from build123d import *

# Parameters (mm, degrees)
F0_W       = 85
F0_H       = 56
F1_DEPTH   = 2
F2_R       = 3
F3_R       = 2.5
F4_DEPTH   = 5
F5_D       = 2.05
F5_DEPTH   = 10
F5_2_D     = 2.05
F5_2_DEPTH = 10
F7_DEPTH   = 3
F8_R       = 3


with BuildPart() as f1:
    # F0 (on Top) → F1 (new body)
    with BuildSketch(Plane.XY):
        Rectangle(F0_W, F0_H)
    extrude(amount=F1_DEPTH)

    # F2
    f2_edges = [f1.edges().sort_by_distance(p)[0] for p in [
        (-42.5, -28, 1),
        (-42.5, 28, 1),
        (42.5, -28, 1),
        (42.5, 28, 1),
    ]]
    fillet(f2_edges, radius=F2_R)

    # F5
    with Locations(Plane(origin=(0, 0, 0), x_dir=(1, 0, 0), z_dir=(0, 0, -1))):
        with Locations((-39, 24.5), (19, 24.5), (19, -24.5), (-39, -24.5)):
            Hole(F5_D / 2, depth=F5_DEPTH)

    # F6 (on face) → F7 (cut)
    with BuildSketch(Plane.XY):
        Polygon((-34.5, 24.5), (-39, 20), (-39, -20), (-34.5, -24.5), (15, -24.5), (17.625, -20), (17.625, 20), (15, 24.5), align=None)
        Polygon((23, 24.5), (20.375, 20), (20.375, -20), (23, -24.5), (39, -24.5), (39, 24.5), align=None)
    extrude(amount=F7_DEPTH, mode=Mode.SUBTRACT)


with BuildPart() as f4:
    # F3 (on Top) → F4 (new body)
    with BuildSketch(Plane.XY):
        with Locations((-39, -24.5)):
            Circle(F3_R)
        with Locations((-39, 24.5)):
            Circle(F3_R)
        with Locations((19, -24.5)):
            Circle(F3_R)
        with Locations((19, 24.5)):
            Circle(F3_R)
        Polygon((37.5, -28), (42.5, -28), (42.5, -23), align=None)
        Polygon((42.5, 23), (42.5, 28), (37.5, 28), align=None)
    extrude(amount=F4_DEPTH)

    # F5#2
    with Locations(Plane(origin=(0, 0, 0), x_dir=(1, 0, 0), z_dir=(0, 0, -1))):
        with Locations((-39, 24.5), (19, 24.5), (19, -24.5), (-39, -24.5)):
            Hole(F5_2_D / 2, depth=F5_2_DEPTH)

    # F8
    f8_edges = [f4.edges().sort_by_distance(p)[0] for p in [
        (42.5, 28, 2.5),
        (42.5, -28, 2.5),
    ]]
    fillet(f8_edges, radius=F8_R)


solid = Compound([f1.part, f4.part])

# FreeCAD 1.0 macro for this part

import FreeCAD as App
import Part
import Sketcher
from FreeCAD import Vector


def edges_at(feature, points):
    """Names of the edges that pass closest to the given points."""
    edges = feature.Shape.Edges
    near = lambda p: min(range(len(edges)), key=lambda i: edges[i].distToShape(Part.Vertex(*p))[0])
    return sorted({f"Edge{near(p) + 1}" for p in points})

doc = App.newDocument("Part")
body = doc.addObject("PartDesign::Body", "Body")

# Sketch on XY plane
sketch1 = doc.addObject("Sketcher::SketchObject", "Sketch")
body.addObject(sketch1)
sketch1.AttachmentSupport = (doc.XY_Plane, [""])
sketch1.MapMode = "FlatFace"
sketch1.addGeometry(Part.LineSegment(Vector(-42, 28, 0), Vector(-42, -28, 0)), False)
sketch1.addGeometry(Part.LineSegment(Vector(-42, -28, 0), Vector(42, -28, 0)), False)
sketch1.addGeometry(Part.LineSegment(Vector(42, -28, 0), Vector(42, 28, 0)), False)
sketch1.addGeometry(Part.LineSegment(Vector(42, 28, 0), Vector(-42, 28, 0)), False)
sketch1.addConstraint(Sketcher.Constraint("Coincident", 0, 2, 1, 1))
sketch1.addConstraint(Sketcher.Constraint("Coincident", 1, 2, 2, 1))
sketch1.addConstraint(Sketcher.Constraint("Coincident", 2, 2, 3, 1))
sketch1.addConstraint(Sketcher.Constraint("Coincident", 3, 2, 0, 1))
sketch1.addConstraint(Sketcher.Constraint("Vertical", 0))
sketch1.addConstraint(Sketcher.Constraint("Horizontal", 1))
sketch1.addConstraint(Sketcher.Constraint("Vertical", 2))
sketch1.addConstraint(Sketcher.Constraint("Horizontal", 3))
sketch1.addConstraint(Sketcher.Constraint("Symmetric", 0, 2, 2, 2, -1, 1))
sketch1.addConstraint(Sketcher.Constraint("DistanceX", 1, 1, 1, 2, 85.0))
sketch1.addConstraint(Sketcher.Constraint("DistanceY", 0, 2, 0, 1, 56.0))
pad1 = doc.addObject("PartDesign::Pad", "Pad")
body.addObject(pad1)
pad1.Profile = sketch1
pad1.Length = 2
doc.recompute()

fillet = doc.addObject("PartDesign::Fillet", "Fillet")
body.addObject(fillet)
fillet.Base = (pad1, edges_at(pad1, [
    (-42.5, -28, 1),
    (-42.5, 28, 1),
    (42.5, -28, 1),
    (42.5, 28, 1),
]))
fillet.Radius = 3

# Sketch on XY plane
sketch2 = doc.addObject("Sketcher::SketchObject", "Sketch001")
body.addObject(sketch2)
sketch2.AttachmentSupport = (doc.XY_Plane, [""])
sketch2.MapMode = "FlatFace"
sketch2.addGeometry(Part.Circle(Vector(-39, -24.5, 0), Vector(0, 0, 1), 1), False)
sketch2.addGeometry(Part.Circle(Vector(19, -24.5, 0), Vector(0, 0, 1), 1), False)
sketch2.addGeometry(Part.Circle(Vector(19, 24.5, 0), Vector(0, 0, 1), 1), False)
sketch2.addGeometry(Part.Circle(Vector(-39, 24.5, 0), Vector(0, 0, 1), 1), False)
sketch2.addConstraint(Sketcher.Constraint("Equal", 0, 1))
sketch2.addConstraint(Sketcher.Constraint("Equal", 1, 2))
sketch2.addConstraint(Sketcher.Constraint("Equal", 2, 3))
sketch2.addConstraint(Sketcher.Constraint("Symmetric", 1, 3, 2, 3, -1))
sketch2.addConstraint(Sketcher.Constraint("Symmetric", 0, 3, 3, 3, -1))
sketch2.addConstraint(Sketcher.Constraint("Horizontal", 0, 3, 1, 3))
sketch2.addConstraint(Sketcher.Constraint("Diameter", 0, 2.05))
sketch2.addConstraint(Sketcher.Constraint("DistanceX", 0, 3, -1, 1, 39.0))
sketch2.addConstraint(Sketcher.Constraint("DistanceX", -1, 1, 1, 3, 19.0))
sketch2.addConstraint(Sketcher.Constraint("DistanceY", 1, 3, 2, 3, 49.0))
doc.recompute()
hole = doc.addObject("PartDesign::Hole", "Hole")
body.addObject(hole)
hole.Profile = sketch2
hole.ThreadType = "None"
hole.Diameter = 2.05
hole.DepthType = "Dimension"
hole.Depth = 10
hole.DrillPoint = "Flat"
hole.Reversed = True

# Sketch on XY plane
sketch3 = doc.addObject("Sketcher::SketchObject", "Sketch002")
body.addObject(sketch3)
sketch3.AttachmentSupport = (doc.XY_Plane, [""])
sketch3.MapMode = "FlatFace"
sketch3.addGeometry(Part.LineSegment(Vector(-34, 24, 0), Vector(-39, 20, 0)), False)
sketch3.addGeometry(Part.LineSegment(Vector(-39, 20, 0), Vector(-39, -20, 0)), False)
sketch3.addGeometry(Part.LineSegment(Vector(-39, -20, 0), Vector(-34, -24, 0)), False)
sketch3.addGeometry(Part.LineSegment(Vector(-34, -24, 0), Vector(15, -24, 0)), False)
sketch3.addGeometry(Part.LineSegment(Vector(15, -24, 0), Vector(18, -20, 0)), False)
sketch3.addGeometry(Part.LineSegment(Vector(18, -20, 0), Vector(18, 20, 0)), False)
sketch3.addGeometry(Part.LineSegment(Vector(18, 20, 0), Vector(15, 24, 0)), False)
sketch3.addGeometry(Part.LineSegment(Vector(15, 24, 0), Vector(-34, 24, 0)), False)
sketch3.addGeometry(Part.LineSegment(Vector(23, 24, 0), Vector(20, 20, 0)), False)
sketch3.addGeometry(Part.LineSegment(Vector(20, 20, 0), Vector(20, -20, 0)), False)
sketch3.addGeometry(Part.LineSegment(Vector(20, -20, 0), Vector(23, -24, 0)), False)
sketch3.addGeometry(Part.LineSegment(Vector(23, -24, 0), Vector(39, -24, 0)), False)
sketch3.addGeometry(Part.LineSegment(Vector(39, -24, 0), Vector(39, 24, 0)), False)
sketch3.addGeometry(Part.LineSegment(Vector(39, 24, 0), Vector(23, 24, 0)), False)
sketch3.addConstraint(Sketcher.Constraint("Coincident", 0, 2, 1, 1))
sketch3.addConstraint(Sketcher.Constraint("Coincident", 1, 2, 2, 1))
sketch3.addConstraint(Sketcher.Constraint("Coincident", 2, 2, 3, 1))
sketch3.addConstraint(Sketcher.Constraint("Coincident", 3, 2, 4, 1))
sketch3.addConstraint(Sketcher.Constraint("Coincident", 4, 2, 5, 1))
sketch3.addConstraint(Sketcher.Constraint("Coincident", 5, 2, 6, 1))
sketch3.addConstraint(Sketcher.Constraint("Coincident", 6, 2, 7, 1))
sketch3.addConstraint(Sketcher.Constraint("Coincident", 7, 2, 0, 1))
sketch3.addConstraint(Sketcher.Constraint("Coincident", 8, 2, 9, 1))
sketch3.addConstraint(Sketcher.Constraint("Coincident", 9, 2, 10, 1))
sketch3.addConstraint(Sketcher.Constraint("Coincident", 10, 2, 11, 1))
sketch3.addConstraint(Sketcher.Constraint("Coincident", 11, 2, 12, 1))
sketch3.addConstraint(Sketcher.Constraint("Coincident", 12, 2, 13, 1))
sketch3.addConstraint(Sketcher.Constraint("Coincident", 13, 2, 8, 1))
sketch3.addConstraint(Sketcher.Constraint("Vertical", 1))
sketch3.addConstraint(Sketcher.Constraint("Horizontal", 3))
sketch3.addConstraint(Sketcher.Constraint("Vertical", 5))
sketch3.addConstraint(Sketcher.Constraint("Horizontal", 7))
sketch3.addConstraint(Sketcher.Constraint("Vertical", 9))
sketch3.addConstraint(Sketcher.Constraint("Horizontal", 11))
sketch3.addConstraint(Sketcher.Constraint("Vertical", 12))
sketch3.addConstraint(Sketcher.Constraint("Horizontal", 13))
sketch3.addConstraint(Sketcher.Constraint("Symmetric", 3, 2, 6, 2, -1))
sketch3.addConstraint(Sketcher.Constraint("Symmetric", 10, 2, 13, 2, -1))
sketch3.addConstraint(Sketcher.Constraint("Perpendicular", 0, 2))
sketch3.addConstraint(Sketcher.Constraint("Parallel", 4, 8))
sketch3.addConstraint(Sketcher.Constraint("Parallel", 6, 10))
sketch3.addConstraint(Sketcher.Constraint("Horizontal", 1, 2, 4, 2))
sketch3.addConstraint(Sketcher.Constraint("Horizontal", 0, 2, 5, 2))
sketch3.addConstraint(Sketcher.Constraint("Horizontal", 5, 2, 8, 2))
sketch3.addConstraint(Sketcher.Constraint("Horizontal", 4, 2, 9, 2))
sketch3.addConstraint(Sketcher.Constraint("Horizontal", 3, 2, 10, 2))
sketch3.addConstraint(Sketcher.Constraint("Vertical", 2, 2, 7, 2))
sketch3.addConstraint(Sketcher.Constraint("DistanceX", 11, 1, 11, 2, 16.0))
sketch3.addConstraint(Sketcher.Constraint("DistanceY", 1, 2, 1, 1, 40.0))
sketch3.addConstraint(Sketcher.Constraint("DistanceY", 12, 1, 12, 2, 49.0))
sketch3.addConstraint(Sketcher.Constraint("DistanceX", 3, 1, 3, 2, 49.5))
sketch3.addConstraint(Sketcher.Constraint("DistanceX", 0, 2, -1, 1, 39.0))
sketch3.addConstraint(Sketcher.Constraint("DistanceX", -1, 1, 10, 2, 23.0))
sketch3.addConstraint(Sketcher.Constraint("DistanceX", 5, 2, 8, 2, 2.75))
pocket1 = doc.addObject("PartDesign::Pocket", "Pocket")
body.addObject(pocket1)
pocket1.Profile = sketch3
pocket1.Length = 3
pocket1.Reversed = True
body2 = doc.addObject("PartDesign::Body", "Body001")
body2.AllowCompound = True

# Sketch on XY plane
sketch4 = doc.addObject("Sketcher::SketchObject", "Sketch003")
body2.addObject(sketch4)
sketch4.AttachmentSupport = (doc.getObject("XY_Plane001"), [""])
sketch4.MapMode = "FlatFace"
sketch4.addGeometry(Part.Circle(Vector(-39, -24.5, 0), Vector(0, 0, 1), 2.5), False)
sketch4.addGeometry(Part.Circle(Vector(-39, 24.5, 0), Vector(0, 0, 1), 2.5), False)
sketch4.addGeometry(Part.Circle(Vector(19, -24.5, 0), Vector(0, 0, 1), 2.5), False)
sketch4.addGeometry(Part.Circle(Vector(19, 24.5, 0), Vector(0, 0, 1), 2.5), False)
sketch4.addGeometry(Part.LineSegment(Vector(37.5, -28, 0), Vector(42.5, -28, 0)), False)
sketch4.addGeometry(Part.LineSegment(Vector(42.5, -28, 0), Vector(42.5, -23, 0)), False)
sketch4.addGeometry(Part.LineSegment(Vector(42.5, -23, 0), Vector(37.5, -28, 0)), False)
sketch4.addGeometry(Part.LineSegment(Vector(42.5, 23, 0), Vector(42.5, 28, 0)), False)
sketch4.addGeometry(Part.LineSegment(Vector(42.5, 28, 0), Vector(37.5, 28, 0)), False)
sketch4.addGeometry(Part.LineSegment(Vector(37.5, 28, 0), Vector(42.5, 23, 0)), False)
sketch4.addConstraint(Sketcher.Constraint("Coincident", 4, 2, 5, 1))
sketch4.addConstraint(Sketcher.Constraint("Coincident", 5, 2, 6, 1))
sketch4.addConstraint(Sketcher.Constraint("Coincident", 6, 2, 4, 1))
sketch4.addConstraint(Sketcher.Constraint("Coincident", 7, 2, 8, 1))
sketch4.addConstraint(Sketcher.Constraint("Coincident", 8, 2, 9, 1))
sketch4.addConstraint(Sketcher.Constraint("Coincident", 9, 2, 7, 1))
sketch4.addConstraint(Sketcher.Constraint("Horizontal", 4))
sketch4.addConstraint(Sketcher.Constraint("Vertical", 5))
sketch4.addConstraint(Sketcher.Constraint("Vertical", 7))
sketch4.addConstraint(Sketcher.Constraint("Horizontal", 8))
sketch4.addConstraint(Sketcher.Constraint("Equal", 0, 1))
sketch4.addConstraint(Sketcher.Constraint("Equal", 1, 2))
sketch4.addConstraint(Sketcher.Constraint("Equal", 2, 3))
sketch4.addConstraint(Sketcher.Constraint("Symmetric", 0, 3, 1, 3, -1))
sketch4.addConstraint(Sketcher.Constraint("Symmetric", 2, 3, 3, 3, -1))
sketch4.addConstraint(Sketcher.Constraint("Symmetric", 4, 2, 7, 2, -1))
sketch4.addConstraint(Sketcher.Constraint("Perpendicular", 6, 9))
sketch4.addConstraint(Sketcher.Constraint("Horizontal", 0, 3, 2, 3))
sketch4.addConstraint(Sketcher.Constraint("Vertical", 6, 2, 8, 2))
sketch4.addConstraint(Sketcher.Constraint("Equal", 8, 5))
sketch4.addConstraint(Sketcher.Constraint("Diameter", 0, 5.0))
sketch4.addConstraint(Sketcher.Constraint("DistanceX", 4, 1, 4, 2, 5.0))
sketch4.addConstraint(Sketcher.Constraint("DistanceX", 0, 3, -1, 1, 39.0))
sketch4.addConstraint(Sketcher.Constraint("DistanceX", -1, 1, 2, 3, 19.0))
sketch4.addConstraint(Sketcher.Constraint("DistanceY", 4, 2, -1, 1, 28.0))
sketch4.addConstraint(Sketcher.Constraint("DistanceY", 0, 3, 1, 3, 49.0))
sketch4.addConstraint(Sketcher.Constraint("DistanceX", -1, 1, 4, 2, 42.5))
pad2 = doc.addObject("PartDesign::Pad", "Pad001")
body2.addObject(pad2)
pad2.Profile = sketch4
pad2.Length = 5

# Sketch on XY plane
sketch5 = doc.addObject("Sketcher::SketchObject", "Sketch004")
body2.addObject(sketch5)
sketch5.AttachmentSupport = (doc.getObject("XY_Plane001"), [""])
sketch5.MapMode = "FlatFace"
sketch5.addGeometry(Part.Circle(Vector(-39, -24.5, 0), Vector(0, 0, 1), 1), False)
sketch5.addGeometry(Part.Circle(Vector(19, -24.5, 0), Vector(0, 0, 1), 1), False)
sketch5.addGeometry(Part.Circle(Vector(19, 24.5, 0), Vector(0, 0, 1), 1), False)
sketch5.addGeometry(Part.Circle(Vector(-39, 24.5, 0), Vector(0, 0, 1), 1), False)
sketch5.addConstraint(Sketcher.Constraint("Equal", 0, 1))
sketch5.addConstraint(Sketcher.Constraint("Equal", 1, 2))
sketch5.addConstraint(Sketcher.Constraint("Equal", 2, 3))
sketch5.addConstraint(Sketcher.Constraint("Symmetric", 1, 3, 2, 3, -1))
sketch5.addConstraint(Sketcher.Constraint("Symmetric", 0, 3, 3, 3, -1))
sketch5.addConstraint(Sketcher.Constraint("Horizontal", 0, 3, 1, 3))
sketch5.addConstraint(Sketcher.Constraint("Diameter", 0, 2.05))
sketch5.addConstraint(Sketcher.Constraint("DistanceX", 0, 3, -1, 1, 39.0))
sketch5.addConstraint(Sketcher.Constraint("DistanceX", -1, 1, 1, 3, 19.0))
sketch5.addConstraint(Sketcher.Constraint("DistanceY", 1, 3, 2, 3, 49.0))
doc.recompute()
hole2 = doc.addObject("PartDesign::Hole", "Hole001")
body2.addObject(hole2)
hole2.Profile = sketch5
hole2.ThreadType = "None"
hole2.Diameter = 2.05
hole2.DepthType = "Dimension"
hole2.Depth = 10
hole2.DrillPoint = "Flat"
hole2.Reversed = True
doc.recompute()

fillet2 = doc.addObject("PartDesign::Fillet", "Fillet001")
body2.addObject(fillet2)
fillet2.Base = (hole2, edges_at(hole2, [(42.5, 28, 2.5), (42.5, -28, 2.5)]))
fillet2.Radius = 3

doc.recompute()
